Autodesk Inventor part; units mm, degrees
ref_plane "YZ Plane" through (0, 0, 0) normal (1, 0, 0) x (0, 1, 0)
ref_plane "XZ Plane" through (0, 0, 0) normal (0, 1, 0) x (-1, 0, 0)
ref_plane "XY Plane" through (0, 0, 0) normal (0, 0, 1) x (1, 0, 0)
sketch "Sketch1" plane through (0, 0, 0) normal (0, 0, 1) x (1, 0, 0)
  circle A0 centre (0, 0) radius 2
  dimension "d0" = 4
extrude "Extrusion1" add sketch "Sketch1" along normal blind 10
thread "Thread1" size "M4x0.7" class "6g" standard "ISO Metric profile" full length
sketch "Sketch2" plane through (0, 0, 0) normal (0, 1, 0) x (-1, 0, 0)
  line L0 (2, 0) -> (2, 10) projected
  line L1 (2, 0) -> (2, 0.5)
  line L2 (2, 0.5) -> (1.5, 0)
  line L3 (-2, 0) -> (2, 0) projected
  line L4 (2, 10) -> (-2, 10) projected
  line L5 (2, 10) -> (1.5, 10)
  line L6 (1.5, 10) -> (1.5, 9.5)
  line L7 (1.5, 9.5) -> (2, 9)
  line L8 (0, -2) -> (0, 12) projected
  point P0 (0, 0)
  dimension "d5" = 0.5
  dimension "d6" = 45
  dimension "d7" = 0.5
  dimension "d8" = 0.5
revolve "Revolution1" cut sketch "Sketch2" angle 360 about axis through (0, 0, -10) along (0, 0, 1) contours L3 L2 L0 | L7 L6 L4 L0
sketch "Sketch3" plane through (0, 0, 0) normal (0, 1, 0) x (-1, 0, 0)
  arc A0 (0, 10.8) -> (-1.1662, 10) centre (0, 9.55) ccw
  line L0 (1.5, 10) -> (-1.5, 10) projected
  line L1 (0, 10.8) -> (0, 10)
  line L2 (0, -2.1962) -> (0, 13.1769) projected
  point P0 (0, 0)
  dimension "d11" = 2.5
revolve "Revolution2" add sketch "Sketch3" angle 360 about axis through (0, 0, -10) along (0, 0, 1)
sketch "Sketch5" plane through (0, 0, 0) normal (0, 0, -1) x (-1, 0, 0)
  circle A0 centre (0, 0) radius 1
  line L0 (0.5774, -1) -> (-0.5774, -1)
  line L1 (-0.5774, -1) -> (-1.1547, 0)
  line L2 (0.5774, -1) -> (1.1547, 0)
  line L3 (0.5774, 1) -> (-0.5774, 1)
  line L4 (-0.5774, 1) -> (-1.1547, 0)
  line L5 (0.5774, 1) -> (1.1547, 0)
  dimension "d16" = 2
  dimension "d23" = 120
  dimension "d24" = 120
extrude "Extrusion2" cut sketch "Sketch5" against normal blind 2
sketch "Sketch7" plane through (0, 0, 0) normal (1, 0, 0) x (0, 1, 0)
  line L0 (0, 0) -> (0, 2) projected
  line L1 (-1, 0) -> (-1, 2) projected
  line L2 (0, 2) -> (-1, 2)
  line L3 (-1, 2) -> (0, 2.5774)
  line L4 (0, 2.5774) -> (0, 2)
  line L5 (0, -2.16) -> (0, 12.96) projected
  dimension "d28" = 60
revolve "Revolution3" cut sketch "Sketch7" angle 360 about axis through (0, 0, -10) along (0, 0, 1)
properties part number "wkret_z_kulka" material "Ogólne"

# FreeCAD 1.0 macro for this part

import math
import FreeCAD as App
import Part
import Sketcher
from FreeCAD import Vector
Q = App.Units.Quantity

doc = App.newDocument("Part")
params = doc.addObject("Spreadsheet::Sheet", "Params")
for row, (alias, value) in enumerate([
    ("sketch1_diameter", "4 mm"),
    ("pad1_length", "10 mm"),
    ("sketch2_width", "0.5 mm"),
    ("groove_angle", "360 deg"),
    ("sketch3_radius", "1.25 mm"),
    ("sketch3_height", "0.8 mm"),
    ("revolution_angle", "360 deg"),
    ("pocket1_length", "2 mm"),
    ("sketch5_width", "1 mm"),
    ("groove2_angle", "360 deg"),
], start=1):
    params.set(f"A{row}", alias)
    params.set(f"B{row}", "=" + value)
    params.setAlias(f"B{row}", alias)

body = doc.addObject("PartDesign::Body", "Body")

# Sketch on XY plane
sketch1 = body.newObject("Sketcher::SketchObject", "Sketch")
sketch1.AttachmentSupport = (doc.getObject("XY_Plane"), [""])
sketch1.MapMode = "FlatFace"
sketch1.addGeometry(Part.Circle(Vector(0, 0, 0), Vector(0, 0, 1), 2), False)
sketch1.addConstraint([
    Sketcher.Constraint("Coincident", 0, 3, -1, 1),
    Sketcher.Constraint("Diameter", 0, Q("4 mm")),
])
sketch1.setExpression("Constraints[1]", "Params.sketch1_diameter")
pad1 = body.newObject("PartDesign::Pad", "Pad")
pad1.Profile = sketch1
pad1.setExpression("Length", "Params.pad1_length")

# Sketch on XZ plane
sketch2 = body.newObject("Sketcher::SketchObject", "Sketch001")
sketch2.AttachmentSupport = (doc.getObject("XZ_Plane"), [""])
sketch2.MapMode = "FlatFace"
sketch2.addGeometry([
    Part.LineSegment(Vector(-1.5, 0, 0), Vector(-2, 0, 0)),  # 0
    Part.LineSegment(Vector(-2, 0, 0), Vector(-2, 0.5, 0)),  # 1
    Part.LineSegment(Vector(-2, 0.5, 0), Vector(-1.5, 0, 0)),  # 2
    Part.LineSegment(Vector(-1.5, 9.5, 0), Vector(-2, 9, 0)),  # 3
    Part.LineSegment(Vector(-2, 9, 0), Vector(-2, 10, 0)),  # 4
    Part.LineSegment(Vector(-2, 10, 0), Vector(-1.5, 10, 0)),  # 5
    Part.LineSegment(Vector(-1.5, 10, 0), Vector(-1.5, 9.5, 0)),  # 6
], False)
sketch2.addConstraint([
    Sketcher.Constraint("Coincident", 0, 2, 1, 1),
    Sketcher.Constraint("Coincident", 1, 2, 2, 1),
    Sketcher.Constraint("Coincident", 2, 2, 0, 1),
    Sketcher.Constraint("Coincident", 3, 2, 4, 1),
    Sketcher.Constraint("Coincident", 4, 2, 5, 1),
    Sketcher.Constraint("Coincident", 5, 2, 6, 1),
    Sketcher.Constraint("Coincident", 6, 2, 3, 1),
    Sketcher.Constraint("Horizontal", 0),
    Sketcher.Constraint("Vertical", 1),
    Sketcher.Constraint("Vertical", 4),
    Sketcher.Constraint("Horizontal", 5),
    Sketcher.Constraint("Vertical", 6),
    Sketcher.Constraint("PointOnObject", 0, 2, -1),
    Sketcher.Constraint("Perpendicular", 2, 3),
    Sketcher.Constraint("Vertical", 1, 2, 3, 2),
    Sketcher.Constraint("Vertical", 2, 2, 5, 2),
    Sketcher.Constraint("Equal", 5, 1),
    Sketcher.Constraint("Equal", 1, 6),
    Sketcher.Constraint("DistanceX", 0, 2, 0, 1, Q("0.5 mm")),
    Sketcher.Constraint("DistanceX", 0, 2, -1, 1, Q("2 mm")),
    Sketcher.Constraint("DistanceY", -1, 1, 3, 2, Q("9 mm")),
])
sketch2.setExpression("Constraints[18]", "Params.sketch2_width")
groove = body.newObject("PartDesign::Groove", "Groove")
groove.Profile = sketch2
groove.ReferenceAxis = (sketch2, ["V_Axis"])
groove.setExpression("Angle", "Params.groove_angle")

# Sketch on XZ plane
sketch3 = body.newObject("Sketcher::SketchObject", "Sketch002")
sketch3.AttachmentSupport = (doc.getObject("XZ_Plane"), [""])
sketch3.MapMode = "FlatFace"
sketch3.addGeometry([
    Part.LineSegment(Vector(0, 10, 0), Vector(0, 10.8, 0)),
    Part.ArcOfCircle(Part.Circle(Vector(0, 9.55, 0), Vector(0, 0, 1), 1.25), math.radians(21.100037), math.radians(90)),
    Part.LineSegment(Vector(1.1662, 10, 0), Vector(0, 10, 0)),
], False)
sketch3.addConstraint([
    Sketcher.Constraint("Coincident", 0, 2, 1, 2),
    Sketcher.Constraint("Coincident", 1, 1, 2, 1),
    Sketcher.Constraint("Coincident", 2, 2, 0, 1),
    Sketcher.Constraint("Vertical", 0),
    Sketcher.Constraint("Horizontal", 2),
    Sketcher.Constraint("PointOnObject", 1, 3, -2),
    Sketcher.Constraint("PointOnObject", 0, 2, -2),
    Sketcher.Constraint("Radius", 1, Q("1.25 mm")),
    Sketcher.Constraint("DistanceY", 0, 1, 0, 2, Q("0.8 mm")),
    Sketcher.Constraint("DistanceY", -1, 1, 1, 1, Q("10 mm")),
])
sketch3.setExpression("Constraints[7]", "Params.sketch3_radius")
sketch3.setExpression("Constraints[8]", "Params.sketch3_height")
revolution = body.newObject("PartDesign::Revolution", "Revolution")
revolution.Profile = sketch3
revolution.ReferenceAxis = (sketch3, ["V_Axis"])
revolution.setExpression("Angle", "Params.revolution_angle")

# Sketch on XY plane
sketch4 = body.newObject("Sketcher::SketchObject", "Sketch003")
sketch4.AttachmentSupport = (doc.getObject("XY_Plane"), [""])
sketch4.MapMode = "FlatFace"
sketch4.addGeometry([
    Part.LineSegment(Vector(-1.1547, 0, 0), Vector(-0.5774, 1, 0)),  # 0
    Part.LineSegment(Vector(-0.5774, 1, 0), Vector(0.5774, 1, 0)),  # 1
    Part.LineSegment(Vector(0.5774, 1, 0), Vector(1.1547, 0, 0)),  # 2
    Part.LineSegment(Vector(1.1547, 0, 0), Vector(0.5774, -1, 0)),  # 3
    Part.LineSegment(Vector(0.5774, -1, 0), Vector(-0.5774, -1, 0)),  # 4
    Part.LineSegment(Vector(-0.5774, -1, 0), Vector(-1.1547, 0, 0)),  # 5
], False)
sketch4.addConstraint([
    Sketcher.Constraint("Coincident", 0, 2, 1, 1),
    Sketcher.Constraint("Coincident", 1, 2, 2, 1),
    Sketcher.Constraint("Coincident", 2, 2, 3, 1),
    Sketcher.Constraint("Coincident", 3, 2, 4, 1),
    Sketcher.Constraint("Coincident", 4, 2, 5, 1),
    Sketcher.Constraint("Coincident", 5, 2, 0, 1),
    Sketcher.Constraint("Horizontal", 1),
    Sketcher.Constraint("Horizontal", 4),
    Sketcher.Constraint("Symmetric", 0, 2, 3, 2, -1, 1),
    Sketcher.Constraint("Symmetric", 2, 2, 5, 2, -1, 1),
    Sketcher.Constraint("PointOnObject", 2, 2, -1),
    Sketcher.Constraint("Parallel", 2, 5),
    Sketcher.Constraint("Vertical", 1, 2, 3, 2),
    Sketcher.Constraint("DistanceY", 3, 2, 1, 2, Q("2 mm")),
    Sketcher.Constraint("DistanceX", 1, 1, 1, 2, Q("1.1548 mm")),
    Sketcher.Constraint("DistanceX", 0, 2, 2, 2, Q("1.732 mm")),
])
pocket1 = body.newObject("PartDesign::Pocket", "Pocket")
pocket1.Profile = sketch4
pocket1.setExpression("Length", "Params.pocket1_length")
pocket1.Reversed = True

# Sketch on YZ plane
sketch5 = body.newObject("Sketcher::SketchObject", "Sketch004")
sketch5.AttachmentSupport = (doc.getObject("YZ_Plane"), [""])
sketch5.MapMode = "FlatFace"
sketch5.addGeometry([
    Part.LineSegment(Vector(-1, 2, 0), Vector(0, 2, 0)),
    Part.LineSegment(Vector(0, 2, 0), Vector(0, 2.5774, 0)),
    Part.LineSegment(Vector(0, 2.5774, 0), Vector(-1, 2, 0)),
], False)
sketch5.addConstraint([
    Sketcher.Constraint("Coincident", 0, 2, 1, 1),
    Sketcher.Constraint("Coincident", 1, 2, 2, 1),
    Sketcher.Constraint("Coincident", 2, 2, 0, 1),
    Sketcher.Constraint("Horizontal", 0),
    Sketcher.Constraint("Vertical", 1),
    Sketcher.Constraint("PointOnObject", 0, 2, -2),
    Sketcher.Constraint("DistanceX", 0, 1, 0, 2, Q("1 mm")),
    Sketcher.Constraint("DistanceY", -1, 1, 0, 2, Q("2 mm")),
    Sketcher.Constraint("DistanceY", 1, 1, 1, 2, Q("0.5774 mm")),
])
sketch5.setExpression("Constraints[6]", "Params.sketch5_width")
groove2 = body.newObject("PartDesign::Groove", "Groove001")
groove2.Profile = sketch5
groove2.ReferenceAxis = (sketch5, ["V_Axis"])
groove2.setExpression("Angle", "Params.groove2_angle")

doc.recompute()
